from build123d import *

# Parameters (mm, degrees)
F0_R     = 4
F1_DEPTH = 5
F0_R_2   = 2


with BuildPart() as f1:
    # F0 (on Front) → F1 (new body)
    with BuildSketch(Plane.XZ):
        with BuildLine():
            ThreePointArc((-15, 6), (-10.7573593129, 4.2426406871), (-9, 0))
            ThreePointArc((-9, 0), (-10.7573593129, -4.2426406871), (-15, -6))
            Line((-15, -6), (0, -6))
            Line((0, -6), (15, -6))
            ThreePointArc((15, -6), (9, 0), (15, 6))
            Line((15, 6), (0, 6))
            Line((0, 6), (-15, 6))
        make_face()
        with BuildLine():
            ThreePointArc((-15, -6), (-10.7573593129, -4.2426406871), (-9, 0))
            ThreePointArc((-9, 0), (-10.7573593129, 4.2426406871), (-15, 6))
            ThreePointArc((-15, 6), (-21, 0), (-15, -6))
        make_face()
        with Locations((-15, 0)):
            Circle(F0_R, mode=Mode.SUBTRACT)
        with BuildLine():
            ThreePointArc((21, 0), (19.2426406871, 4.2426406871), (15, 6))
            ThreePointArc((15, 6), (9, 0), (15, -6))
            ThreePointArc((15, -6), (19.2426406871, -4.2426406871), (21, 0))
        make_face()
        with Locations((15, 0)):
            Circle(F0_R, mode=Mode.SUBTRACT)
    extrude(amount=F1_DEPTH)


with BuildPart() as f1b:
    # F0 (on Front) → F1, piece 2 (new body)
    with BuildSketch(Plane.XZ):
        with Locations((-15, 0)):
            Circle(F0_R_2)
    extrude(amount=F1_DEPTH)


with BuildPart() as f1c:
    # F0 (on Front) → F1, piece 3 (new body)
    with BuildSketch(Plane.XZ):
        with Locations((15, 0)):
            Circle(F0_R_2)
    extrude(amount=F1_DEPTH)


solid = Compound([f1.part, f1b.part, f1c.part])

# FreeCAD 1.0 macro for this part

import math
import FreeCAD as App
import Part
import Sketcher
from FreeCAD import Vector
Q = App.Units.Quantity

doc = App.newDocument("Part")
body = doc.addObject("PartDesign::Body", "Body")

sketch1 = body.newObject("Sketcher::SketchObject", "Sketch")
sketch1.AttachmentSupport = (doc.getObject("XZ_Plane"), [""])
sketch1.MapMode = "FlatFace"
sketch1.addGeometry(Part.LineSegment(Vector(-15, -6, 0), Vector(15, -6, 0)), False)
sketch1.addGeometry(Part.ArcOfCircle(Part.Circle(Vector(15, 0, 0), Vector(0, 0, 1), 6), math.radians(-90), math.radians(0)), False)
sketch1.addGeometry(Part.ArcOfCircle(Part.Circle(Vector(15, 0, 0), Vector(0, 0, 1), 6), math.radians(0), math.radians(90)), False)
sketch1.addGeometry(Part.LineSegment(Vector(15, 6, 0), Vector(-15, 6, 0)), False)
sketch1.addGeometry(Part.ArcOfCircle(Part.Circle(Vector(-15, 0, 0), Vector(0, 0, 1), 6), math.radians(90), math.radians(270)), False)
sketch1.addGeometry(Part.Circle(Vector(-15, 0, 0), Vector(0, 0, 1), 4), False)
sketch1.addGeometry(Part.Circle(Vector(15, 0, 0), Vector(0, 0, 1), 4), False)
sketch1.addConstraint(Sketcher.Constraint("Tangent", 0, 2, 1, 1))
sketch1.addConstraint(Sketcher.Constraint("Tangent", 1, 2, 2, 1))
sketch1.addConstraint(Sketcher.Constraint("Tangent", 2, 2, 3, 1))
sketch1.addConstraint(Sketcher.Constraint("Tangent", 3, 2, 4, 1))
sketch1.addConstraint(Sketcher.Constraint("Tangent", 4, 2, 0, 1))
sketch1.addConstraint(Sketcher.Constraint("Horizontal", 0))
sketch1.addConstraint(Sketcher.Constraint("Horizontal", 3))
sketch1.addConstraint(Sketcher.Constraint("Coincident", 5, 3, 4, 3))
sketch1.addConstraint(Sketcher.Constraint("Coincident", 6, 3, 1, 3))
sketch1.addConstraint(Sketcher.Constraint("Equal", 1, 2))
sketch1.addConstraint(Sketcher.Constraint("Equal", 5, 6))
sketch1.addConstraint(Sketcher.Constraint("Symmetric", 1, 3, 4, 3, -1, 1))
sketch1.addConstraint(Sketcher.Constraint("PointOnObject", 1, 2, -1))
sketch1.addConstraint(Sketcher.Constraint("Diameter", 5, Q("8 mm")))
sketch1.addConstraint(Sketcher.Constraint("Radius", 1, Q("6 mm")))
sketch1.addConstraint(Sketcher.Constraint("DistanceX", 0, 1, 0, 2, Q("30 mm")))
pad1 = body.newObject("PartDesign::Pad", "Pad")
pad1.Profile = sketch1
pad1.Length = 5
body2 = doc.addObject("PartDesign::Body", "Body001")

sketch2 = body2.newObject("Sketcher::SketchObject", "Sketch001")
sketch2.AttachmentSupport = (doc.getObject("XZ_Plane001"), [""])
sketch2.MapMode = "FlatFace"
sketch2.addGeometry(Part.Circle(Vector(-15, 0, 0), Vector(0, 0, 1), 2), False)
sketch2.addConstraint(Sketcher.Constraint("PointOnObject", 0, 3, -1))
sketch2.addConstraint(Sketcher.Constraint("Diameter", 0, Q("4 mm")))
sketch2.addConstraint(Sketcher.Constraint("DistanceX", 0, 3, -1, 1, Q("15 mm")))
pad2 = body2.newObject("PartDesign::Pad", "Pad001")
pad2.Profile = sketch2
pad2.Length = 5
body3 = doc.addObject("PartDesign::Body", "Body002")

sketch3 = body3.newObject("Sketcher::SketchObject", "Sketch002")
sketch3.AttachmentSupport = (doc.getObject("XZ_Plane002"), [""])
sketch3.MapMode = "FlatFace"
sketch3.addGeometry(Part.Circle(Vector(15, 0, 0), Vector(0, 0, 1), 2), False)
sketch3.addConstraint(Sketcher.Constraint("PointOnObject", 0, 3, -1))
sketch3.addConstraint(Sketcher.Constraint("Diameter", 0, Q("4 mm")))
sketch3.addConstraint(Sketcher.Constraint("DistanceX", -1, 1, 0, 3, Q("15 mm")))
pad3 = body3.newObject("PartDesign::Pad", "Pad002")
pad3.Profile = sketch3
pad3.Length = 5

doc.recompute()
